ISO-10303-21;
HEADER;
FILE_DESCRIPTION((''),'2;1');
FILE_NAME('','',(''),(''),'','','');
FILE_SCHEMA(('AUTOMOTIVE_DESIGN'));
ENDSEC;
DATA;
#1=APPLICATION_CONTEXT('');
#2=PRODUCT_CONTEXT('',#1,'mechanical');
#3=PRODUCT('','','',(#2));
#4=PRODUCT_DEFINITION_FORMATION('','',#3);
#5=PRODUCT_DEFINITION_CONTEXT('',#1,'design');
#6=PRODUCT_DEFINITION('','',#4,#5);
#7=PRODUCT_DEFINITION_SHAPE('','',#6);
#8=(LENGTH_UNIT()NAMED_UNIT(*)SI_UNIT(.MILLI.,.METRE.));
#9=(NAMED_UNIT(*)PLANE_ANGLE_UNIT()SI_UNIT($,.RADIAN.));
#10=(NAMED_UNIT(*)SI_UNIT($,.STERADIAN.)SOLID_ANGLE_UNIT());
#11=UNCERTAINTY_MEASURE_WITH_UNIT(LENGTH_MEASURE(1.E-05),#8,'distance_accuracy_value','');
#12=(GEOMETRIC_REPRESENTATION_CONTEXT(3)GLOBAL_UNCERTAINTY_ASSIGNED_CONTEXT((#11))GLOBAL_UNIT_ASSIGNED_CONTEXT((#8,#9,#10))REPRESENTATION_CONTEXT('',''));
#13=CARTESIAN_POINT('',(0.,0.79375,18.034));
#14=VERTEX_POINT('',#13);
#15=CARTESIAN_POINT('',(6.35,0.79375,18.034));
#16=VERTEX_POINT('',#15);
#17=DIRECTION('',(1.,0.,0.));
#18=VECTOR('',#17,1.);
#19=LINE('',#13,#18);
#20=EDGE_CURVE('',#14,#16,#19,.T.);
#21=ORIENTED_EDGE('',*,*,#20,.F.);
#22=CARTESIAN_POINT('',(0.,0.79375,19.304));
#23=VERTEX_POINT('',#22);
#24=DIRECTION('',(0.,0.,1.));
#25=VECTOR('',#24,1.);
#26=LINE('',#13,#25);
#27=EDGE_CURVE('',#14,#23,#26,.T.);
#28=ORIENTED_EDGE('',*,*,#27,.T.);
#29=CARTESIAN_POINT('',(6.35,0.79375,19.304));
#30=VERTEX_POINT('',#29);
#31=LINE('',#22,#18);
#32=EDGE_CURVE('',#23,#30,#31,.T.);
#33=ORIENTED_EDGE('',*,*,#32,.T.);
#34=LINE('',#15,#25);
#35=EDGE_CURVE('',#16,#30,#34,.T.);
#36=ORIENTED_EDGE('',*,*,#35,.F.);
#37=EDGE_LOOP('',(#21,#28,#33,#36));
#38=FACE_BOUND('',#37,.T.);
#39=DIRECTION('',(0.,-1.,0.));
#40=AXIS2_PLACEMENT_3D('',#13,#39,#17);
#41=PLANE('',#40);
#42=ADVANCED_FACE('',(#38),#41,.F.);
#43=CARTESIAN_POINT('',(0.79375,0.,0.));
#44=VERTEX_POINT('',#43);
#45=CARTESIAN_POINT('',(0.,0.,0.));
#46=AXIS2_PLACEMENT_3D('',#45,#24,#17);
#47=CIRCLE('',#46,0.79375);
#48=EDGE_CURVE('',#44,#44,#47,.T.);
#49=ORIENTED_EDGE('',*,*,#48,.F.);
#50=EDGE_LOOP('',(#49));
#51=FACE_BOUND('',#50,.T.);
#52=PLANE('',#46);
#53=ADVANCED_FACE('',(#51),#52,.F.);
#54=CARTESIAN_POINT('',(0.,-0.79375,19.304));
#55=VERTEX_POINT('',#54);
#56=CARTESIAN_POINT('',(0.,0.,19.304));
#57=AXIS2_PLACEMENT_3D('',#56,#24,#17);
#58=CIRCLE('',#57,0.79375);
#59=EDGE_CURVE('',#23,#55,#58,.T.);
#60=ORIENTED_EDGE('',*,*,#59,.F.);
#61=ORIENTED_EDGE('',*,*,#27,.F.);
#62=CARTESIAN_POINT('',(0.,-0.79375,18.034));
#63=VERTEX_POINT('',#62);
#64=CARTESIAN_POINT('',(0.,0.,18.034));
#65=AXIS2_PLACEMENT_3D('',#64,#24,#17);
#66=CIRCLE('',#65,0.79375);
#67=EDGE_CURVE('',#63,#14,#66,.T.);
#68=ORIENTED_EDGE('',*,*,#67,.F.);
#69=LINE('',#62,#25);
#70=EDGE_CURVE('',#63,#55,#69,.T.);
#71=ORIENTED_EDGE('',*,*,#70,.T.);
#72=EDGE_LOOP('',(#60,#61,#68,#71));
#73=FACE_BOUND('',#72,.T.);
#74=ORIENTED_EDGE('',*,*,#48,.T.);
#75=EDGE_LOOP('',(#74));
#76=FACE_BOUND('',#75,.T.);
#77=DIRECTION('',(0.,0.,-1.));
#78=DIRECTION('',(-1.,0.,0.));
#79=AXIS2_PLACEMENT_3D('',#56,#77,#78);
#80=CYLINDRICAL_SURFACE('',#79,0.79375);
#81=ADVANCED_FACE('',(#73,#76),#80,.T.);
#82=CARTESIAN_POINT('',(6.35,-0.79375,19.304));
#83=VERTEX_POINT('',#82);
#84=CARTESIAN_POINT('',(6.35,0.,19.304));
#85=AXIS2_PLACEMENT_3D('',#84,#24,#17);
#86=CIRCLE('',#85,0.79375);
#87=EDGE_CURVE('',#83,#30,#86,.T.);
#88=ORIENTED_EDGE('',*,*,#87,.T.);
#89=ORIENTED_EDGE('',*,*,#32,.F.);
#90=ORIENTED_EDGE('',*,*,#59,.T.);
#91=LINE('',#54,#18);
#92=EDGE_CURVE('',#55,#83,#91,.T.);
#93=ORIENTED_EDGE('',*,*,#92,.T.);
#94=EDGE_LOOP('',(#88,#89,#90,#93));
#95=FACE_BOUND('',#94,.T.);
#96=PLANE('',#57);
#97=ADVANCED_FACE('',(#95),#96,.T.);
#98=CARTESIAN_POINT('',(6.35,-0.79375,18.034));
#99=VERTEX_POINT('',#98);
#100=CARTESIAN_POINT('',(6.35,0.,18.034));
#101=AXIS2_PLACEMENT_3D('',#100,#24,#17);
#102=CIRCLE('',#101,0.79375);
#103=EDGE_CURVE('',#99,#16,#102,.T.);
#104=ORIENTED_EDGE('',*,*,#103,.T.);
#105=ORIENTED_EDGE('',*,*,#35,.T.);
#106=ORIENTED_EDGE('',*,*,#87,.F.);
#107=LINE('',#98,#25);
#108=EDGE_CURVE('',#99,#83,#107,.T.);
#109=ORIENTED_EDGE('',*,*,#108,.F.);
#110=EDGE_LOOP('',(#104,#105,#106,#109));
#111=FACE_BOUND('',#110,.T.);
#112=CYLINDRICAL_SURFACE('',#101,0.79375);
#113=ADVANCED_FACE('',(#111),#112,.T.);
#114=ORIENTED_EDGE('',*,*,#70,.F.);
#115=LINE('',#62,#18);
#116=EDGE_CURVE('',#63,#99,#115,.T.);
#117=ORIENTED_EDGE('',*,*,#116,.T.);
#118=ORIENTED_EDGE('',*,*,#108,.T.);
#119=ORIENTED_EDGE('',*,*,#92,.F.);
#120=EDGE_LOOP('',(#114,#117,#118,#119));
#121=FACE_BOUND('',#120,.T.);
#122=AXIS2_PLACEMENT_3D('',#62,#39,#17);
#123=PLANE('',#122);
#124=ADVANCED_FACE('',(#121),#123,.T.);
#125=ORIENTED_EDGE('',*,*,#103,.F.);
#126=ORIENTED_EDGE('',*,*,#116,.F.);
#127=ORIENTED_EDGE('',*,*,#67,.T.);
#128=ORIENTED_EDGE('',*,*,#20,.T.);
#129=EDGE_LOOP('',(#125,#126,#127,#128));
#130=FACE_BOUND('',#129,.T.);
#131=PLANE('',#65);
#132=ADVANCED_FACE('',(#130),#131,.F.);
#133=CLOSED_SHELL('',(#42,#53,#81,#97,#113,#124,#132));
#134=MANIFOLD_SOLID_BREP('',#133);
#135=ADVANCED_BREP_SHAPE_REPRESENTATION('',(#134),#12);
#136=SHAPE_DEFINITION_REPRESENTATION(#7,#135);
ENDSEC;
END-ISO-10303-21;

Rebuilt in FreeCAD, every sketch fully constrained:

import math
import FreeCAD as App
import Part
import Sketcher

V = App.Vector
Q = App.Units.Quantity

doc = App.newDocument("Part")
params = doc.addObject("Spreadsheet::Sheet", "Params")
for row, (alias, value) in enumerate([
    ("sketch1_diameter", "0.0625 in"),
    ("pad1_length", "0.76 in"),
    ("sketch2_radius", "0.03125 in"),
    ("sketch2_width", "0.25 in"),
    ("pad2_length", "0.05 in"),
], start=1):
    params.set(f"A{row}", alias)
    params.set(f"B{row}", "=" + value)
    params.setAlias(f"B{row}", alias)

body = doc.addObject("PartDesign::Body", "Body")

sketch1 = doc.addObject("Sketcher::SketchObject", "Sketch")
body.addObject(sketch1)
sketch1.AttachmentSupport = (doc.XY_Plane, [""])
sketch1.MapMode = "FlatFace"
sketch1.addGeometry(Part.Circle(V(0, 0, 0), V(0, 0, 1), 0.79375), False)
sketch1.addConstraint(Sketcher.Constraint("Coincident", 0, 3, -1, 1))
sketch1.addConstraint(Sketcher.Constraint("Diameter", 0, Q("0.0625 in")))
sketch1.setExpression("Constraints[1]", "Params.sketch1_diameter")
pad1 = doc.addObject("PartDesign::Pad", "Pad")
body.addObject(pad1)
pad1.Profile = sketch1
pad1.setExpression("Length", "Params.pad1_length")

sketch2 = doc.addObject("Sketcher::SketchObject", "Sketch001")
body.addObject(sketch2)
sketch2.AttachmentSupport = (doc.XY_Plane, [""])
sketch2.MapMode = "FlatFace"
sketch2.AttachmentOffset = App.Placement(V(0, 0, 0.71 * 25.4), App.Rotation())
sketch2.addGeometry(Part.LineSegment(V(6.35, 0.79375, 0), V(0, 0.79375, 0)), False)
sketch2.addGeometry(Part.ArcOfCircle(Part.Circle(V(0, 0, 0), V(0, 0, 1), 0.79375), math.radians(90), math.radians(270)), False)
sketch2.addGeometry(Part.LineSegment(V(0, -0.79375, 0), V(6.35, -0.79375, 0)), False)
sketch2.addGeometry(Part.ArcOfCircle(Part.Circle(V(6.35, 0, 0), V(0, 0, 1), 0.79375), math.radians(-90), math.radians(90)), False)
sketch2.addConstraint(Sketcher.Constraint("Tangent", 0, 2, 1, 1))
sketch2.addConstraint(Sketcher.Constraint("Tangent", 1, 2, 2, 1))
sketch2.addConstraint(Sketcher.Constraint("Tangent", 2, 2, 3, 1))
sketch2.addConstraint(Sketcher.Constraint("Tangent", 3, 2, 0, 1))
sketch2.addConstraint(Sketcher.Constraint("Horizontal", 0))
sketch2.addConstraint(Sketcher.Constraint("Horizontal", 2))
sketch2.addConstraint(Sketcher.Constraint("Coincident", 1, 3, -1, 1))
sketch2.addConstraint(Sketcher.Constraint("Radius", 1, Q("0.03125 in")))
sketch2.addConstraint(Sketcher.Constraint("DistanceX", 0, 2, 0, 1, Q("0.25 in")))
sketch2.setExpression("Constraints[7]", "Params.sketch2_radius")
sketch2.setExpression("Constraints[8]", "Params.sketch2_width")
pad2 = doc.addObject("PartDesign::Pad", "Pad001")
body.addObject(pad2)
pad2.Profile = sketch2
pad2.setExpression("Length", "Params.pad2_length")

doc.recompute()
